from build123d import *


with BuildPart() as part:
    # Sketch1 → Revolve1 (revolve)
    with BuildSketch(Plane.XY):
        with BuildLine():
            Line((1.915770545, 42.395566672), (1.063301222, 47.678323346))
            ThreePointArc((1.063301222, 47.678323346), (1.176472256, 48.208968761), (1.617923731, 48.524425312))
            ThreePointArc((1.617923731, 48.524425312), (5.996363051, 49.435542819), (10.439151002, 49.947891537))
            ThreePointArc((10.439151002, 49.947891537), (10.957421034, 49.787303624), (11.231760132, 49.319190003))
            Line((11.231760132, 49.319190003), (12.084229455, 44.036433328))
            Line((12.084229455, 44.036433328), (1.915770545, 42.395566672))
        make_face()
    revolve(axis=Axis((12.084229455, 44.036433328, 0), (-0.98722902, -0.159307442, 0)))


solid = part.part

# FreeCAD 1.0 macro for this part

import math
import FreeCAD as App
import Part
import Sketcher
from FreeCAD import Vector
Q = App.Units.Quantity

doc = App.newDocument("Part")
body = doc.addObject("PartDesign::Body", "Body")

sketch1 = body.newObject("Sketcher::SketchObject", "Sketch")
sketch1.AttachmentSupport = (doc.getObject("XY_Plane"), [""])
sketch1.MapMode = "FlatFace"
sketch1.addGeometry(Part.LineSegment(Vector(1.063301, 47.678323, 0), Vector(1.915771, 42.395567, 0)), False)
sketch1.addGeometry(Part.LineSegment(Vector(1.915771, 42.395567, 0), Vector(12.084229, 44.036433, 0)), False)
sketch1.addGeometry(Part.LineSegment(Vector(12.084229, 44.036433, 0), Vector(11.23176, 49.31919, 0)), False)
sketch1.addGeometry(Part.ArcOfCircle(Part.Circle(Vector(10.491338, 49.199709, 0), Vector(0, 0, 1), 0.75), math.radians(9.1667), math.radians(93.990045)), False)
sketch1.addGeometry(Part.ArcOfCircle(Part.Circle(Vector(13.88463, 0.551911, 0), Vector(0, 0, 1), 49.516), math.radians(93.990045), math.radians(104.343355)), False)
sketch1.addGeometry(Part.ArcOfCircle(Part.Circle(Vector(1.803723, 47.797804, 0), Vector(0, 0, 1), 0.75), math.radians(104.343364), math.radians(189.1667)), False)
sketch1.addGeometry(Part.LineSegment(Vector(12.084229, 44.036433, 0), Vector(1.915771, 42.395567, 0)), True)
sketch1.addConstraint(Sketcher.Constraint("Coincident", 0, 2, 1, 1))
sketch1.addConstraint(Sketcher.Constraint("Coincident", 1, 2, 2, 1))
sketch1.addConstraint(Sketcher.Constraint("Tangent", 2, 2, 3, 1))
sketch1.addConstraint(Sketcher.Constraint("Tangent", 3, 2, 4, 1))
sketch1.addConstraint(Sketcher.Constraint("Tangent", 4, 2, 5, 1))
sketch1.addConstraint(Sketcher.Constraint("Tangent", 5, 2, 0, 1))
sketch1.addConstraint(Sketcher.Constraint("Coincident", 6, 1, 1, 2))
sketch1.addConstraint(Sketcher.Constraint("Coincident", 6, 2, 0, 2))
sketch1.addConstraint(Sketcher.Constraint("Equal", 3, 5))
sketch1.addConstraint(Sketcher.Constraint("Perpendicular", 0, 1))
sketch1.addConstraint(Sketcher.Constraint("Perpendicular", 1, 2))
sketch1.addConstraint(Sketcher.Constraint("Equal", 0, 2))
sketch1.addConstraint(Sketcher.Constraint("Radius", 3, Q("0.75 mm")))
sketch1.addConstraint(Sketcher.Constraint("Radius", 4, Q("49.516 mm")))
sketch1.addConstraint(Sketcher.Constraint("Distance", 1, Q("10.3 mm")))
sketch1.addConstraint(Sketcher.Constraint("DistanceX", -1, 1, 5, 2, Q("1.063301 mm")))
sketch1.addConstraint(Sketcher.Constraint("DistanceY", 4, 3, 3, 3, Q("48.647799 mm")))
sketch1.addConstraint(Sketcher.Constraint("DistanceX", 1, 2, 4, 3, Q("1.800401 mm")))
sketch1.addConstraint(Sketcher.Constraint("DistanceY", -1, 1, 3, 3, Q("49.199709 mm")))
revolution = body.newObject("PartDesign::Revolution", "Revolution")
revolution.Profile = sketch1
revolution.ReferenceAxis = (sketch1, ["Axis0"])
revolution.Angle = 360

doc.recompute()
